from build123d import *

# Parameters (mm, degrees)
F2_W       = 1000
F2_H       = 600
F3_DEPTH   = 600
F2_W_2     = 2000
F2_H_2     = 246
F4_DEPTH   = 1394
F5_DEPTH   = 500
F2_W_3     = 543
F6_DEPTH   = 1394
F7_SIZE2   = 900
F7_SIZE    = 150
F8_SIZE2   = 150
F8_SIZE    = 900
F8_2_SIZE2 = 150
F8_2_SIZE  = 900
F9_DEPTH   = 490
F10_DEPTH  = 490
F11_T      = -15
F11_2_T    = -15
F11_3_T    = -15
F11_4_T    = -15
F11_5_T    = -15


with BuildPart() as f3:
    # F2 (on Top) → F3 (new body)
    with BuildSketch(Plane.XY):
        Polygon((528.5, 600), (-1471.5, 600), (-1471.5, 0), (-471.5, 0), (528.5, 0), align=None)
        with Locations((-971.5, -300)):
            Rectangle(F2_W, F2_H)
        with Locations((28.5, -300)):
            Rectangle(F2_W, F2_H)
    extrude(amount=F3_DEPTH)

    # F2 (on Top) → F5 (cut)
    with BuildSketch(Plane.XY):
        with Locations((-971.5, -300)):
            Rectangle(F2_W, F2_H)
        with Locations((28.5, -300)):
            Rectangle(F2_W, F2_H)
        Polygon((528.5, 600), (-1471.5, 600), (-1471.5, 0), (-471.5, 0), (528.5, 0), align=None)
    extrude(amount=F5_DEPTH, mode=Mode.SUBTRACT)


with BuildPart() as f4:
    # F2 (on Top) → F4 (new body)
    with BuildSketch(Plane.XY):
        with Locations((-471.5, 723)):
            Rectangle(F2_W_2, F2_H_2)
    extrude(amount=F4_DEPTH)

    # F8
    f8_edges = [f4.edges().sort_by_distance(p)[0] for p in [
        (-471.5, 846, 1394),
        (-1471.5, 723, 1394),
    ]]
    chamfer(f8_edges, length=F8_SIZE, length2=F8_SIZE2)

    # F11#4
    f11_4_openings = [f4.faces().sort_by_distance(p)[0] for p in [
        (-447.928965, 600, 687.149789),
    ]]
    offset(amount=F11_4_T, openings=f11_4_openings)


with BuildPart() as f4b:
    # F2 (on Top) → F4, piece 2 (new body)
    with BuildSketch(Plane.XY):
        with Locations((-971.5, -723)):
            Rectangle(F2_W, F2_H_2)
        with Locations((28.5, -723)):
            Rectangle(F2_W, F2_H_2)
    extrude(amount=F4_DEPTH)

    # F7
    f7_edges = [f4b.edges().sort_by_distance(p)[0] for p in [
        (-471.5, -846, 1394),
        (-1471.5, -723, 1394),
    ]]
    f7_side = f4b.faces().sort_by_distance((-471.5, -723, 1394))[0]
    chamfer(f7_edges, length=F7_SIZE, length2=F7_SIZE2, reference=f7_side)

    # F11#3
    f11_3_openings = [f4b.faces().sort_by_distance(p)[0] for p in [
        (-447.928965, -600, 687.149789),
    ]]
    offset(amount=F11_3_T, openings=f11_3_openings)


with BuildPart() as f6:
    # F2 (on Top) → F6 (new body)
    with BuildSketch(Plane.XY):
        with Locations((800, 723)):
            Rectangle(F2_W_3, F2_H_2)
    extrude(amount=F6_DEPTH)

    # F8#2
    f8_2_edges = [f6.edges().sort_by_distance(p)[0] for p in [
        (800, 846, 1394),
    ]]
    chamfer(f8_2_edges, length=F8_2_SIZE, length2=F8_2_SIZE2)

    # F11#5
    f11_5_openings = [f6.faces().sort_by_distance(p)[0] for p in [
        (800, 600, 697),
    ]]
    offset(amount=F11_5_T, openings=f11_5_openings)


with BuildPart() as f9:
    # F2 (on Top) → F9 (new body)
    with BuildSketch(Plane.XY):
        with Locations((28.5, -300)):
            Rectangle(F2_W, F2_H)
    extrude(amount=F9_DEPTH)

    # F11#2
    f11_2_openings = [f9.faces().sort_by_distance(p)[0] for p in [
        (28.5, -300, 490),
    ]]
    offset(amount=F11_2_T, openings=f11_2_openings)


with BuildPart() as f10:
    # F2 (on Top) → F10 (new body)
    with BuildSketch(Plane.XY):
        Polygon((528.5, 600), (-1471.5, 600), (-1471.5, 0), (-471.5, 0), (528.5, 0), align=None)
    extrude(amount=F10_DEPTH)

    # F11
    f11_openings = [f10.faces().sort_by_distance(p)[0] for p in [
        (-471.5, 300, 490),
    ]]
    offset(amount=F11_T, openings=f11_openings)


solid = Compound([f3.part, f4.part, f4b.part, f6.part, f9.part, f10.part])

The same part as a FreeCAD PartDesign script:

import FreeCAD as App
import Part
import Sketcher

V = App.Vector
Q = App.Units.Quantity


def edges_at(feature, points):
    """Names of the edges that pass closest to the given points."""
    edges = feature.Shape.Edges
    near = lambda p: min(range(len(edges)), key=lambda i: edges[i].distToShape(Part.Vertex(*p))[0])
    return sorted({f"Edge{near(p) + 1}" for p in points})


def faces_at(feature, points):
    """Names of the faces that lie closest to the given points."""
    faces = feature.Shape.Faces
    near = lambda p: min(range(len(faces)), key=lambda i: faces[i].distToShape(Part.Vertex(*p))[0])
    return sorted({f"Face{near(p) + 1}" for p in points})

doc = App.newDocument("Part")
body = doc.addObject("PartDesign::Body", "Body")

sketch1 = doc.addObject("Sketcher::SketchObject", "Sketch")
body.addObject(sketch1)
sketch1.AttachmentSupport = (doc.XY_Plane, [""])
sketch1.MapMode = "FlatFace"
sketch1.addGeometry(Part.LineSegment(V(528, 600, 0), V(-1472, 600, 0)), False)
sketch1.addGeometry(Part.LineSegment(V(-1472, 600, 0), V(-1472, -600, 0)), False)
sketch1.addGeometry(Part.LineSegment(V(-1472, -600, 0), V(528, -600, 0)), False)
sketch1.addGeometry(Part.LineSegment(V(528, -600, 0), V(528, 600, 0)), False)
sketch1.addConstraint(Sketcher.Constraint("Coincident", 0, 2, 1, 1))
sketch1.addConstraint(Sketcher.Constraint("Coincident", 1, 2, 2, 1))
sketch1.addConstraint(Sketcher.Constraint("Coincident", 2, 2, 3, 1))
sketch1.addConstraint(Sketcher.Constraint("Coincident", 3, 2, 0, 1))
sketch1.addConstraint(Sketcher.Constraint("Horizontal", 0))
sketch1.addConstraint(Sketcher.Constraint("Vertical", 1))
sketch1.addConstraint(Sketcher.Constraint("Horizontal", 2))
sketch1.addConstraint(Sketcher.Constraint("Vertical", 3))
sketch1.addConstraint(Sketcher.Constraint("DistanceX", 0, 2, 0, 1, Q("2000 mm")))
sketch1.addConstraint(Sketcher.Constraint("DistanceY", 1, 2, 1, 1, Q("1200 mm")))
sketch1.addConstraint(Sketcher.Constraint("DistanceY", -1, 1, 0, 2, Q("600 mm")))
sketch1.addConstraint(Sketcher.Constraint("DistanceX", 0, 2, -1, 1, Q("1471.5 mm")))
pad1 = doc.addObject("PartDesign::Pad", "Pad")
body.addObject(pad1)
pad1.Profile = sketch1
pad1.Length = 600

sketch2 = doc.addObject("Sketcher::SketchObject", "Sketch001")
body.addObject(sketch2)
sketch2.AttachmentSupport = (doc.XY_Plane, [""])
sketch2.MapMode = "FlatFace"
sketch2.addGeometry(Part.LineSegment(V(-1472, -600, 0), V(528, -600, 0)), False)
sketch2.addGeometry(Part.LineSegment(V(528, -600, 0), V(528, 600, 0)), False)
sketch2.addGeometry(Part.LineSegment(V(528, 600, 0), V(-1472, 600, 0)), False)
sketch2.addGeometry(Part.LineSegment(V(-1472, 600, 0), V(-1472, -600, 0)), False)
sketch2.addConstraint(Sketcher.Constraint("Coincident", 0, 2, 1, 1))
sketch2.addConstraint(Sketcher.Constraint("Coincident", 1, 2, 2, 1))
sketch2.addConstraint(Sketcher.Constraint("Coincident", 2, 2, 3, 1))
sketch2.addConstraint(Sketcher.Constraint("Coincident", 3, 2, 0, 1))
sketch2.addConstraint(Sketcher.Constraint("Horizontal", 0))
sketch2.addConstraint(Sketcher.Constraint("Vertical", 1))
sketch2.addConstraint(Sketcher.Constraint("Horizontal", 2))
sketch2.addConstraint(Sketcher.Constraint("Vertical", 3))
sketch2.addConstraint(Sketcher.Constraint("DistanceX", 0, 1, 0, 2, Q("2000 mm")))
sketch2.addConstraint(Sketcher.Constraint("DistanceY", 1, 1, 1, 2, Q("1200 mm")))
sketch2.addConstraint(Sketcher.Constraint("DistanceY", 0, 2, -1, 1, Q("600 mm")))
sketch2.addConstraint(Sketcher.Constraint("DistanceX", -1, 1, 0, 2, Q("528.5 mm")))
pocket1 = doc.addObject("PartDesign::Pocket", "Pocket")
body.addObject(pocket1)
pocket1.Profile = sketch2
pocket1.Length = 500
pocket1.Reversed = True
body2 = doc.addObject("PartDesign::Body", "Body001")

sketch3 = doc.addObject("Sketcher::SketchObject", "Sketch002")
body2.addObject(sketch3)
sketch3.AttachmentSupport = (doc.getObject("XY_Plane001"), [""])
sketch3.MapMode = "FlatFace"
sketch3.addGeometry(Part.LineSegment(V(-1472, 846, 0), V(-1472, 600, 0)), False)
sketch3.addGeometry(Part.LineSegment(V(-1472, 600, 0), V(528, 600, 0)), False)
sketch3.addGeometry(Part.LineSegment(V(528, 600, 0), V(528, 846, 0)), False)
sketch3.addGeometry(Part.LineSegment(V(528, 846, 0), V(-1472, 846, 0)), False)
sketch3.addConstraint(Sketcher.Constraint("Coincident", 0, 2, 1, 1))
sketch3.addConstraint(Sketcher.Constraint("Coincident", 1, 2, 2, 1))
sketch3.addConstraint(Sketcher.Constraint("Coincident", 2, 2, 3, 1))
sketch3.addConstraint(Sketcher.Constraint("Coincident", 3, 2, 0, 1))
sketch3.addConstraint(Sketcher.Constraint("Vertical", 0))
sketch3.addConstraint(Sketcher.Constraint("Horizontal", 1))
sketch3.addConstraint(Sketcher.Constraint("Vertical", 2))
sketch3.addConstraint(Sketcher.Constraint("Horizontal", 3))
sketch3.addConstraint(Sketcher.Constraint("DistanceX", 1, 1, 1, 2, Q("2000 mm")))
sketch3.addConstraint(Sketcher.Constraint("DistanceY", 0, 2, 0, 1, Q("246 mm")))
sketch3.addConstraint(Sketcher.Constraint("DistanceY", -1, 1, 0, 2, Q("600 mm")))
sketch3.addConstraint(Sketcher.Constraint("DistanceX", 0, 2, -1, 1, Q("1471.5 mm")))
pad2 = doc.addObject("PartDesign::Pad", "Pad001")
body2.addObject(pad2)
pad2.Profile = sketch3
pad2.Length = 1394
doc.recompute()

chamfer = doc.addObject("PartDesign::Chamfer", "Chamfer")
body2.addObject(chamfer)
chamfer.Base = (pad2, edges_at(pad2, [(-471.5, 846, 1394), (-1471.5, 723, 1394)]))
chamfer.ChamferType = "Two distances"
chamfer.Size = 900
chamfer.Size2 = 150
doc.recompute()

thickness = doc.addObject("PartDesign::Thickness", "Thickness")
body2.addObject(thickness)
thickness.Base = (chamfer, faces_at(chamfer, [(-471.5, 600, 697)]))
thickness.Value = 15
thickness.Reversed = True
thickness.Join = "Arc"
body3 = doc.addObject("PartDesign::Body", "Body002")

sketch4 = doc.addObject("Sketcher::SketchObject", "Sketch003")
body3.addObject(sketch4)
sketch4.AttachmentSupport = (doc.getObject("XY_Plane002"), [""])
sketch4.MapMode = "FlatFace"
sketch4.addGeometry(Part.LineSegment(V(-1472, -600, 0), V(-1472, -846, 0)), False)
sketch4.addGeometry(Part.LineSegment(V(-1472, -846, 0), V(528, -846, 0)), False)
sketch4.addGeometry(Part.LineSegment(V(528, -846, 0), V(528, -600, 0)), False)
sketch4.addGeometry(Part.LineSegment(V(528, -600, 0), V(-1472, -600, 0)), False)
sketch4.addConstraint(Sketcher.Constraint("Coincident", 0, 2, 1, 1))
sketch4.addConstraint(Sketcher.Constraint("Coincident", 1, 2, 2, 1))
sketch4.addConstraint(Sketcher.Constraint("Coincident", 2, 2, 3, 1))
sketch4.addConstraint(Sketcher.Constraint("Coincident", 3, 2, 0, 1))
sketch4.addConstraint(Sketcher.Constraint("Vertical", 0))
sketch4.addConstraint(Sketcher.Constraint("Horizontal", 1))
sketch4.addConstraint(Sketcher.Constraint("Vertical", 2))
sketch4.addConstraint(Sketcher.Constraint("Horizontal", 3))
sketch4.addConstraint(Sketcher.Constraint("DistanceX", 1, 1, 1, 2, Q("2000 mm")))
sketch4.addConstraint(Sketcher.Constraint("DistanceY", 0, 2, 0, 1, Q("246 mm")))
sketch4.addConstraint(Sketcher.Constraint("DistanceY", 0, 2, -1, 1, Q("846 mm")))
sketch4.addConstraint(Sketcher.Constraint("DistanceX", 0, 2, -1, 1, Q("1471.5 mm")))
pad3 = doc.addObject("PartDesign::Pad", "Pad002")
body3.addObject(pad3)
pad3.Profile = sketch4
pad3.Length = 1394
doc.recompute()

chamfer2 = doc.addObject("PartDesign::Chamfer", "Chamfer001")
body3.addObject(chamfer2)
chamfer2.Base = (pad3, edges_at(pad3, [(-471.5, -846, 1394), (-1471.5, -723, 1394)]))
chamfer2.ChamferType = "Two distances"
chamfer2.Size = 150
chamfer2.Size2 = 900
chamfer2.FlipDirection = True
doc.recompute()

thickness2 = doc.addObject("PartDesign::Thickness", "Thickness001")
body3.addObject(thickness2)
thickness2.Base = (chamfer2, faces_at(chamfer2, [(-471.5, -600, 697)]))
thickness2.Value = 15
thickness2.Reversed = True
thickness2.Join = "Arc"
body4 = doc.addObject("PartDesign::Body", "Body003")

sketch5 = doc.addObject("Sketcher::SketchObject", "Sketch004")
body4.addObject(sketch5)
sketch5.AttachmentSupport = (doc.getObject("XY_Plane003"), [""])
sketch5.MapMode = "FlatFace"
sketch5.addGeometry(Part.LineSegment(V(528, 846, 0), V(528, 600, 0)), False)
sketch5.addGeometry(Part.LineSegment(V(528, 600, 0), V(1072, 600, 0)), False)
sketch5.addGeometry(Part.LineSegment(V(1072, 600, 0), V(1072, 846, 0)), False)
sketch5.addGeometry(Part.LineSegment(V(1072, 846, 0), V(528, 846, 0)), False)
sketch5.addConstraint(Sketcher.Constraint("Coincident", 0, 2, 1, 1))
sketch5.addConstraint(Sketcher.Constraint("Coincident", 1, 2, 2, 1))
sketch5.addConstraint(Sketcher.Constraint("Coincident", 2, 2, 3, 1))
sketch5.addConstraint(Sketcher.Constraint("Coincident", 3, 2, 0, 1))
sketch5.addConstraint(Sketcher.Constraint("Vertical", 0))
sketch5.addConstraint(Sketcher.Constraint("Horizontal", 1))
sketch5.addConstraint(Sketcher.Constraint("Vertical", 2))
sketch5.addConstraint(Sketcher.Constraint("Horizontal", 3))
sketch5.addConstraint(Sketcher.Constraint("DistanceX", 1, 1, 1, 2, Q("543 mm")))
sketch5.addConstraint(Sketcher.Constraint("DistanceY", 0, 2, 0, 1, Q("246 mm")))
sketch5.addConstraint(Sketcher.Constraint("DistanceY", -1, 1, 0, 2, Q("600 mm")))
sketch5.addConstraint(Sketcher.Constraint("DistanceX", -1, 1, 0, 2, Q("528.5 mm")))
pad4 = doc.addObject("PartDesign::Pad", "Pad003")
body4.addObject(pad4)
pad4.Profile = sketch5
pad4.Length = 1394
doc.recompute()

chamfer3 = doc.addObject("PartDesign::Chamfer", "Chamfer002")
body4.addObject(chamfer3)
chamfer3.Base = (pad4, edges_at(pad4, [(800, 846, 1394)]))
chamfer3.ChamferType = "Two distances"
chamfer3.Size = 900
chamfer3.Size2 = 150
doc.recompute()

thickness3 = doc.addObject("PartDesign::Thickness", "Thickness002")
body4.addObject(thickness3)
thickness3.Base = (chamfer3, faces_at(chamfer3, [(800, 600, 697)]))
thickness3.Value = 15
thickness3.Reversed = True
thickness3.Join = "Arc"
body5 = doc.addObject("PartDesign::Body", "Body004")

sketch6 = doc.addObject("Sketcher::SketchObject", "Sketch005")
body5.addObject(sketch6)
sketch6.AttachmentSupport = (doc.getObject("XY_Plane004"), [""])
sketch6.MapMode = "FlatFace"
sketch6.addGeometry(Part.LineSegment(V(-472, 0, 0), V(-472, -600, 0)), False)
sketch6.addGeometry(Part.LineSegment(V(-472, -600, 0), V(528, -600, 0)), False)
sketch6.addGeometry(Part.LineSegment(V(528, -600, 0), V(528, 0, 0)), False)
sketch6.addGeometry(Part.LineSegment(V(528, 0, 0), V(-472, 0, 0)), False)
sketch6.addConstraint(Sketcher.Constraint("Coincident", 0, 2, 1, 1))
sketch6.addConstraint(Sketcher.Constraint("Coincident", 1, 2, 2, 1))
sketch6.addConstraint(Sketcher.Constraint("Coincident", 2, 2, 3, 1))
sketch6.addConstraint(Sketcher.Constraint("Coincident", 3, 2, 0, 1))
sketch6.addConstraint(Sketcher.Constraint("Vertical", 0))
sketch6.addConstraint(Sketcher.Constraint("Horizontal", 1))
sketch6.addConstraint(Sketcher.Constraint("Vertical", 2))
sketch6.addConstraint(Sketcher.Constraint("Horizontal", 3))
sketch6.addConstraint(Sketcher.Constraint("PointOnObject", 2, 2, -1))
sketch6.addConstraint(Sketcher.Constraint("DistanceX", 1, 1, 1, 2, Q("1000 mm")))
sketch6.addConstraint(Sketcher.Constraint("DistanceY", 0, 2, 0, 1, Q("600 mm")))
sketch6.addConstraint(Sketcher.Constraint("DistanceX", 0, 2, -1, 1, Q("471.5 mm")))
pad5 = doc.addObject("PartDesign::Pad", "Pad004")
body5.addObject(pad5)
pad5.Profile = sketch6
pad5.Length = 490
doc.recompute()

thickness4 = doc.addObject("PartDesign::Thickness", "Thickness003")
body5.addObject(thickness4)
thickness4.Base = (pad5, faces_at(pad5, [(28.5, -300, 490)]))
thickness4.Value = 15
thickness4.Reversed = True
thickness4.Join = "Arc"
body6 = doc.addObject("PartDesign::Body", "Body005")

sketch7 = doc.addObject("Sketcher::SketchObject", "Sketch006")
body6.addObject(sketch7)
sketch7.AttachmentSupport = (doc.getObject("XY_Plane005"), [""])
sketch7.MapMode = "FlatFace"
sketch7.addGeometry(Part.LineSegment(V(528, 600, 0), V(-1472, 600, 0)), False)
sketch7.addGeometry(Part.LineSegment(V(-1472, 600, 0), V(-1472, 0, 0)), False)
sketch7.addGeometry(Part.LineSegment(V(-1472, 0, 0), V(528, 0, 0)), False)
sketch7.addGeometry(Part.LineSegment(V(528, 0, 0), V(528, 600, 0)), False)
sketch7.addConstraint(Sketcher.Constraint("Coincident", 0, 2, 1, 1))
sketch7.addConstraint(Sketcher.Constraint("Coincident", 1, 2, 2, 1))
sketch7.addConstraint(Sketcher.Constraint("Coincident", 2, 2, 3, 1))
sketch7.addConstraint(Sketcher.Constraint("Coincident", 3, 2, 0, 1))
sketch7.addConstraint(Sketcher.Constraint("Horizontal", 0))
sketch7.addConstraint(Sketcher.Constraint("Vertical", 1))
sketch7.addConstraint(Sketcher.Constraint("Horizontal", 2))
sketch7.addConstraint(Sketcher.Constraint("Vertical", 3))
sketch7.addConstraint(Sketcher.Constraint("PointOnObject", 1, 2, -1))
sketch7.addConstraint(Sketcher.Constraint("DistanceX", 0, 2, 0, 1, Q("2000 mm")))
sketch7.addConstraint(Sketcher.Constraint("DistanceY", 1, 2, 1, 1, Q("600 mm")))
sketch7.addConstraint(Sketcher.Constraint("DistanceX", 0, 2, -1, 1, Q("1471.5 mm")))
pad6 = doc.addObject("PartDesign::Pad", "Pad005")
body6.addObject(pad6)
pad6.Profile = sketch7
pad6.Length = 490
doc.recompute()

thickness5 = doc.addObject("PartDesign::Thickness", "Thickness004")
body6.addObject(thickness5)
thickness5.Base = (pad6, faces_at(pad6, [(-471.5, 300, 490)]))
thickness5.Value = 15
thickness5.Reversed = True
thickness5.Join = "Arc"

doc.recompute()
